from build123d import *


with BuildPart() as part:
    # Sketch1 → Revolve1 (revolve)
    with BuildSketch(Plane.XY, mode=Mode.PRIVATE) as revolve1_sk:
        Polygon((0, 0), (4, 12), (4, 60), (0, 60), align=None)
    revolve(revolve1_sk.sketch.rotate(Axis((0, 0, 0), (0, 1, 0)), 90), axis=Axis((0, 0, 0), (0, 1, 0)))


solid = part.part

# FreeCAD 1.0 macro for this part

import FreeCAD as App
import Part
import Sketcher
from FreeCAD import Vector


def add_polygon(sketch, points):
    """Adds a closed chain of lines whose ends are joined by coincident constraints."""
    first, n = sketch.GeometryCount, len(points)
    for a, b in zip(points, points[1:] + points[:1]):
        sketch.addGeometry(Part.LineSegment(App.Vector(*a, 0), App.Vector(*b, 0)), False)
    for i in range(n):
        sketch.addConstraint(Sketcher.Constraint("Coincident", first + i, 2, first + (i + 1) % n, 1))

doc = App.newDocument("Part")
body = doc.addObject("PartDesign::Body", "Body")

sketch1 = body.newObject("Sketcher::SketchObject", "Sketch")
sketch1.AttachmentSupport = (doc.getObject("XY_Plane"), [""])
sketch1.MapMode = "FlatFace"
add_polygon(sketch1, [(0, 0), (4, 12), (4, 60), (0, 60)])
sketch1.addConstraint([
    Sketcher.Constraint("Vertical", 1),
    Sketcher.Constraint("Horizontal", 2),
    Sketcher.Constraint("Vertical", 3),
    Sketcher.Constraint("Coincident", 3, 2, -1, 1),
    Sketcher.Constraint("DistanceX", 2, 2, 2, 1, 4.0),
    Sketcher.Constraint("DistanceY", 1, 1, 1, 2, 48.0),
    Sketcher.Constraint("DistanceY", 3, 2, 3, 1, 60.0),
])
revolution = body.newObject("PartDesign::Revolution", "Revolution")
revolution.Profile = sketch1
revolution.ReferenceAxis = (sketch1, ["V_Axis"])
revolution.Angle = 360

doc.recompute()
